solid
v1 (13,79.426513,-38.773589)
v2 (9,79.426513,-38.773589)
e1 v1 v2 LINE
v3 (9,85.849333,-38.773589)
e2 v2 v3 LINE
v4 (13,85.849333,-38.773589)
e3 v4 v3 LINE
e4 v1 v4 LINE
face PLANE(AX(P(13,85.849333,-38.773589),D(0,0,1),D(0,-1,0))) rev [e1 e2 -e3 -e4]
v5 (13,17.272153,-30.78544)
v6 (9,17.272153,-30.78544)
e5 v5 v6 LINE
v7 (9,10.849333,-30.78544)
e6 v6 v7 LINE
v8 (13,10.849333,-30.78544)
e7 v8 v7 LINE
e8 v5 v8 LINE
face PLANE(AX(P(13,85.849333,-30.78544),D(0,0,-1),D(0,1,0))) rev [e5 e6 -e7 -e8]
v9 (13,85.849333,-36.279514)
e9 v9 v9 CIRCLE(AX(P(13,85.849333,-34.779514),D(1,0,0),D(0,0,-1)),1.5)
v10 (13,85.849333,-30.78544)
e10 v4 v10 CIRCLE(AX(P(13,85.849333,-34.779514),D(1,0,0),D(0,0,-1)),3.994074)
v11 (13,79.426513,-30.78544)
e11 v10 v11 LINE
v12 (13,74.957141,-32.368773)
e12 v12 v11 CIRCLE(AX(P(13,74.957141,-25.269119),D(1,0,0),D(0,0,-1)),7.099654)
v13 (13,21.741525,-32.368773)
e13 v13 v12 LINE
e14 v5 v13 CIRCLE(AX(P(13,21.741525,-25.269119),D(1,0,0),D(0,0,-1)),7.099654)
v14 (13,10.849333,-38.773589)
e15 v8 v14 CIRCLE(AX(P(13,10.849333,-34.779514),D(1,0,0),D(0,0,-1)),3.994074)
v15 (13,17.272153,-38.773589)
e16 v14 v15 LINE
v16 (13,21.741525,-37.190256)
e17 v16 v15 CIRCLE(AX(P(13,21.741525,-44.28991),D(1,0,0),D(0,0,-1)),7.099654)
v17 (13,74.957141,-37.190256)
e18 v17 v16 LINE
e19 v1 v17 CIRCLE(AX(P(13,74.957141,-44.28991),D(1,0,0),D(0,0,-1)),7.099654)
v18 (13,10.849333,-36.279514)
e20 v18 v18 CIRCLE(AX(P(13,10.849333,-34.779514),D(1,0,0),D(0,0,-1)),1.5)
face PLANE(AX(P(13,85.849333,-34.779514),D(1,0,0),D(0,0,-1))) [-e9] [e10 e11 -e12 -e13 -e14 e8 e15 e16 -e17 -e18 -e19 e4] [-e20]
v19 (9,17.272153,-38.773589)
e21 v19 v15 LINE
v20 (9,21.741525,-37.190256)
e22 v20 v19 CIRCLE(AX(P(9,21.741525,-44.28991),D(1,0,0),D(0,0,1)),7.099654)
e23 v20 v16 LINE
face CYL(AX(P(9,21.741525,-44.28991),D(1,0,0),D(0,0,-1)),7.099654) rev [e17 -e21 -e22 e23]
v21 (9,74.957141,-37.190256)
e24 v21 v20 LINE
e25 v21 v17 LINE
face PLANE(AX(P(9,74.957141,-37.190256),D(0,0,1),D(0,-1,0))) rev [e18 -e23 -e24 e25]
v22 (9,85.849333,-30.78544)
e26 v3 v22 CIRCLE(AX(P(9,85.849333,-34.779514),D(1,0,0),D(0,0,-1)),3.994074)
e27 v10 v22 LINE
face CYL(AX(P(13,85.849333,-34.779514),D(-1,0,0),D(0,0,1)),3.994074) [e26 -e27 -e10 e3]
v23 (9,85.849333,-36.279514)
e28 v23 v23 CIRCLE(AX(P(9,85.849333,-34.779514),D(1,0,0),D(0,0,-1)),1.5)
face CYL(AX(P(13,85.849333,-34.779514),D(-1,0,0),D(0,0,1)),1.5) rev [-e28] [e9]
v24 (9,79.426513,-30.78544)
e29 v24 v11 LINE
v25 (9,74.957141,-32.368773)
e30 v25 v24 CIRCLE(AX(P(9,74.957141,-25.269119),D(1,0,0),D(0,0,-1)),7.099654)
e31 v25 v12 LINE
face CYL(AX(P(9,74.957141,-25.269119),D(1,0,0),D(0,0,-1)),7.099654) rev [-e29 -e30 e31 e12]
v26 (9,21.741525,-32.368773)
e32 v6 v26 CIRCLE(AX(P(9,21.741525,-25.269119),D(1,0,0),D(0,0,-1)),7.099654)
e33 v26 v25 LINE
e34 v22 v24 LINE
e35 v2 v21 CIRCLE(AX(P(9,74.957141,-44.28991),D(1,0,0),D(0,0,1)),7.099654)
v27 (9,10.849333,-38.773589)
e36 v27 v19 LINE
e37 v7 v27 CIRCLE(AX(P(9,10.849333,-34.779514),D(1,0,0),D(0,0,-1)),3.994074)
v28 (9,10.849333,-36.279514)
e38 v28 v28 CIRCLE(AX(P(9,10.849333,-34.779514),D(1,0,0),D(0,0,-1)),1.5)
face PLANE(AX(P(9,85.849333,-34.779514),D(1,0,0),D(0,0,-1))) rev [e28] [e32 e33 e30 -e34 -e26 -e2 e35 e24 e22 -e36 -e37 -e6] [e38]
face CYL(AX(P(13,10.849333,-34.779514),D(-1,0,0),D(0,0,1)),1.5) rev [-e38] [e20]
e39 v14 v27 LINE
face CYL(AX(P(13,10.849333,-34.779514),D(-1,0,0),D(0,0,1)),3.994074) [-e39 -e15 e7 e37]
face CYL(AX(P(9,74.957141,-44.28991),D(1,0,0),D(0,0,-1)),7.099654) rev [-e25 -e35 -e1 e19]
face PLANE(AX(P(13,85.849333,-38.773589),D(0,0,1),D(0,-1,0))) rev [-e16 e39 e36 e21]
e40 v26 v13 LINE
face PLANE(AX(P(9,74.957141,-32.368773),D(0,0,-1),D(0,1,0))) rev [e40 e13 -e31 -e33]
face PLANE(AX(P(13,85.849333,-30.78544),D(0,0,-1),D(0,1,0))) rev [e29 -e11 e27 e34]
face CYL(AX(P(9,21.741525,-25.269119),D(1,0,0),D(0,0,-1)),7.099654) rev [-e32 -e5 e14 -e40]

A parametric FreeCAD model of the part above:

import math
import FreeCAD as App
import Part
import Sketcher


def edges_at(feature, points):
    """Names of the edges that pass closest to the given points."""
    edges = feature.Shape.Edges
    near = lambda p: min(range(len(edges)), key=lambda i: edges[i].distToShape(Part.Vertex(*p))[0])
    return sorted({f"Edge{near(p) + 1}" for p in points})

doc = App.newDocument("Part")
body = doc.addObject("PartDesign::Body", "Body")

sketch1 = doc.addObject("Sketcher::SketchObject", "Sketch")
body.addObject(sketch1)
sketch1.AttachmentSupport = (doc.YZ_Plane, [""])
sketch1.MapMode = "FlatFace"
sketch1.addGeometry(Part.Circle(App.Vector(10.826778, -2.983379, 0), App.Vector(0, 0, 1), 10), False)
sketch1.addGeometry(Part.Circle(App.Vector(3.076778, -2.983379, 0), App.Vector(0, 0, 1), 0.8), False)
sketch1.addGeometry(Part.Circle(App.Vector(10.826778, 3.266621, 0), App.Vector(0, 0, 1), 0.8), False)
sketch1.addGeometry(Part.Circle(App.Vector(10.826778, -2.983379, 0), App.Vector(0, 0, 1), 3.301768), False)
sketch1.addGeometry(Part.Circle(App.Vector(10.826778, -9.233379, 0), App.Vector(0, 0, 1), 0.8), False)
sketch1.addGeometry(Part.Circle(App.Vector(18.576778, -2.983379, 0), App.Vector(0, 0, 1), 0.8), False)
sketch1.addConstraint(Sketcher.Constraint("Coincident", 3, 3, 0, 3))
sketch1.addConstraint(Sketcher.Constraint("Equal", 1, 2))
sketch1.addConstraint(Sketcher.Constraint("Equal", 2, 4))
sketch1.addConstraint(Sketcher.Constraint("Equal", 4, 5))
sketch1.addConstraint(Sketcher.Constraint("Horizontal", 0, 3, 1, 3))
sketch1.addConstraint(Sketcher.Constraint("Horizontal", 3, 3, 5, 3))
sketch1.addConstraint(Sketcher.Constraint("Vertical", 0, 3, 2, 3))
sketch1.addConstraint(Sketcher.Constraint("Vertical", 3, 3, 4, 3))
sketch1.addConstraint(Sketcher.Constraint("Diameter", 0, 20.0))
sketch1.addConstraint(Sketcher.Constraint("Diameter", 1, 1.6))
sketch1.addConstraint(Sketcher.Constraint("DistanceY", 4, 3, 2, 3, 12.5))
sketch1.addConstraint(Sketcher.Constraint("DistanceX", 1, 3, 5, 3, 15.5))
sketch1.addConstraint(Sketcher.Constraint("DistanceX", 1, 3, 0, 3, 7.75))
sketch1.addConstraint(Sketcher.Constraint("DistanceY", 0, 3, 2, 3, 6.25))
sketch1.addConstraint(Sketcher.Constraint("Diameter", 3, 6.603536))
sketch1.addConstraint(Sketcher.Constraint("DistanceX", -1, 1, 0, 3, 10.826778))
sketch1.addConstraint(Sketcher.Constraint("DistanceY", 0, 3, -1, 1, 2.983379))
pad1 = doc.addObject("PartDesign::Pad", "Pad")
body.addObject(pad1)
pad1.Profile = sketch1
pad1.Length = 1.5

sketch2 = doc.addObject("Sketcher::SketchObject", "Sketch001")
body.addObject(sketch2)
sketch2.AttachmentSupport = (doc.YZ_Plane, [""])
sketch2.MapMode = "FlatFace"
sketch2.addGeometry(Part.LineSegment(App.Vector(95.891603, 9.565166, 0), App.Vector(95.891603, -15.531924, 0)), False)
sketch2.addGeometry(Part.LineSegment(App.Vector(95.891603, -15.531924, 0), App.Vector(10.826778, -15.531924, 0)), False)
sketch2.addGeometry(Part.ArcOfCircle(Part.Circle(App.Vector(10.826778, -2.983379, 0), App.Vector(0, 0, 1), 12.548545), math.radians(90), math.radians(270)), False)
sketch2.addGeometry(Part.LineSegment(App.Vector(10.826778, 9.565166, 0), App.Vector(95.891603, 9.565166, 0)), False)
sketch2.addGeometry(Part.Circle(App.Vector(10.826778, -2.983379, 0), App.Vector(0, 0, 1), 10), False)
sketch2.addConstraint(Sketcher.Constraint("Coincident", 0, 2, 1, 1))
sketch2.addConstraint(Sketcher.Constraint("Tangent", 1, 2, 2, 2))
sketch2.addConstraint(Sketcher.Constraint("Tangent", 2, 1, 3, 1))
sketch2.addConstraint(Sketcher.Constraint("Coincident", 3, 2, 0, 1))
sketch2.addConstraint(Sketcher.Constraint("Vertical", 0))
sketch2.addConstraint(Sketcher.Constraint("Horizontal", 1))
sketch2.addConstraint(Sketcher.Constraint("Horizontal", 3))
sketch2.addConstraint(Sketcher.Constraint("Coincident", 4, 3, 2, 3))
sketch2.addConstraint(Sketcher.Constraint("Diameter", 4, 20.0))
sketch2.addConstraint(Sketcher.Constraint("Radius", 2, 12.548545))
sketch2.addConstraint(Sketcher.Constraint("DistanceX", 1, 2, 1, 1, 85.064825))
sketch2.addConstraint(Sketcher.Constraint("DistanceX", -1, 1, 2, 3, 10.826778))
sketch2.addConstraint(Sketcher.Constraint("DistanceY", 2, 3, -1, 1, 2.983379))
pad2 = doc.addObject("PartDesign::Pad", "Pad001")
body.addObject(pad2)
pad2.Profile = sketch2
pad2.Length = 9

sketch3 = doc.addObject("Sketcher::SketchObject", "Sketch002")
body.addObject(sketch3)
sketch3.AttachmentSupport = (doc.YZ_Plane, [""])
sketch3.MapMode = "FlatFace"
sketch3.AttachmentOffset = App.Placement(App.Vector(0, 0, 9), App.Rotation())
sketch3.addGeometry(Part.Circle(App.Vector(90.473666, -2.983379, 0), App.Vector(0, 0, 1), 1.5), False)
sketch3.addGeometry(Part.LineSegment(App.Vector(36.150413, 3.05113, 0), App.Vector(97.572569, 3.05113, 0)), False)
sketch3.addGeometry(Part.LineSegment(App.Vector(97.572569, 3.05113, 0), App.Vector(97.572569, 16.389018, 0)), False)
sketch3.addGeometry(Part.LineSegment(App.Vector(97.572569, 16.389018, 0), App.Vector(8.141093, 16.389018, 0)), False)
sketch3.addGeometry(Part.LineSegment(App.Vector(8.141093, 16.389018, 0), App.Vector(10.826778, 9.565166, 0)), False)
sketch3.addGeometry(Part.BSplineCurve([App.Vector(10.826778, 9.565166, 0), App.Vector(15.122204, 9.644231, 0), App.Vector(23.50701, 6.916246, 0), App.Vector(31.561715, 3.428269, 0), App.Vector(36.150413, 3.05113, 0)], [4, 1, 4], [0, 0.482384809, 1], False, 3, [1, 1, 1, 1, 1], False), False)
sketch3.addGeometry(Part.LineSegment(App.Vector(10.826778, -15.531924, 0), App.Vector(8.141093, -22.355776, 0)), False)
sketch3.addGeometry(Part.LineSegment(App.Vector(8.141093, -22.355776, 0), App.Vector(97.572569, -22.355776, 0)), False)
sketch3.addGeometry(Part.LineSegment(App.Vector(97.572569, -22.355776, 0), App.Vector(97.572569, -9.017887, 0)), False)
sketch3.addGeometry(Part.LineSegment(App.Vector(97.572569, -9.017887, 0), App.Vector(36.150413, -9.017887, 0)), False)
sketch3.addGeometry(Part.BSplineCurve([App.Vector(10.826778, -15.531924, 0), App.Vector(15.122204, -15.610989, 0), App.Vector(23.50701, -12.883003, 0), App.Vector(31.561715, -9.395026, 0), App.Vector(36.150413, -9.017887, 0)], [4, 1, 4], [0, 0.482384809, 1], False, 3, [1, 1, 1, 1, 1], False), False)
sketch3.addConstraint(Sketcher.Constraint("Block", 5))
sketch3.addConstraint(Sketcher.Constraint("Block", 10))
sketch3.addConstraint(Sketcher.Constraint("Coincident", 1, 2, 2, 1))
sketch3.addConstraint(Sketcher.Constraint("Coincident", 2, 2, 3, 1))
sketch3.addConstraint(Sketcher.Constraint("Coincident", 3, 2, 4, 1))
sketch3.addConstraint(Sketcher.Constraint("Coincident", 4, 2, 5, 1))
sketch3.addConstraint(Sketcher.Constraint("Coincident", 5, 2, 1, 1))
sketch3.addConstraint(Sketcher.Constraint("Coincident", 6, 2, 7, 1))
sketch3.addConstraint(Sketcher.Constraint("Coincident", 7, 2, 8, 1))
sketch3.addConstraint(Sketcher.Constraint("Coincident", 8, 2, 9, 1))
sketch3.addConstraint(Sketcher.Constraint("Coincident", 9, 2, 10, 2))
sketch3.addConstraint(Sketcher.Constraint("Coincident", 10, 1, 6, 1))
sketch3.addConstraint(Sketcher.Constraint("Horizontal", 1))
sketch3.addConstraint(Sketcher.Constraint("Vertical", 2))
sketch3.addConstraint(Sketcher.Constraint("Horizontal", 3))
sketch3.addConstraint(Sketcher.Constraint("Horizontal", 7))
sketch3.addConstraint(Sketcher.Constraint("Vertical", 8))
sketch3.addConstraint(Sketcher.Constraint("Horizontal", 9))
sketch3.addConstraint(Sketcher.Constraint("Vertical", 3, 2, 6, 2))
sketch3.addConstraint(Sketcher.Constraint("Vertical", 2, 2, 7, 2))
sketch3.addConstraint(Sketcher.Constraint("Equal", 2, 8))
sketch3.addConstraint(Sketcher.Constraint("Diameter", 0, 3.0))
sketch3.addConstraint(Sketcher.Constraint("DistanceY", 2, 1, 2, 2, 13.337889))
sketch3.addConstraint(Sketcher.Constraint("Distance", 4, 7.333339))
sketch3.addConstraint(Sketcher.Constraint("DistanceX", 1, 1, 1, 2, 61.422157))
sketch3.addConstraint(Sketcher.Constraint("DistanceY", 0, 3, -1, 1, 2.983379))
sketch3.addConstraint(Sketcher.Constraint("DistanceX", -1, 1, 0, 3, 90.473666))
pocket1 = doc.addObject("PartDesign::Pocket", "Pocket")
body.addObject(pocket1)
pocket1.Profile = sketch3
pocket1.Type = "ThroughAll"
pocket1.Midplane = True
doc.recompute()

fillet = doc.addObject("PartDesign::Fillet", "Fillet")
body.addObject(fillet)
fillet.Base = (pocket1, edges_at(pocket1, [(4.5, 95.892, 3.051), (4.5, 95.892, -9.018)]))
fillet.Radius = 5

sketch4 = doc.addObject("Sketcher::SketchObject", "Sketch003")
body.addObject(sketch4)
sketch4.AttachmentSupport = (doc.YZ_Plane, [""])
sketch4.MapMode = "FlatFace"
sketch4.AttachmentOffset = App.Placement(App.Vector(0, 0, 9), App.Rotation())
sketch4.addGeometry(Part.LineSegment(App.Vector(97.307194, 23.875207, 0), App.Vector(-8.179488, 23.875207, 0)), False)
sketch4.addGeometry(Part.LineSegment(App.Vector(-8.179488, 23.875207, 0), App.Vector(-8.179488, -19.911717, 0)), False)
sketch4.addGeometry(Part.LineSegment(App.Vector(-8.179488, -19.911717, 0), App.Vector(97.307194, -19.911717, 0)), False)
sketch4.addGeometry(Part.LineSegment(App.Vector(97.307194, -19.911717, 0), App.Vector(97.307194, 23.875207, 0)), False)
sketch4.addConstraint(Sketcher.Constraint("Coincident", 0, 2, 1, 1))
sketch4.addConstraint(Sketcher.Constraint("Coincident", 1, 2, 2, 1))
sketch4.addConstraint(Sketcher.Constraint("Coincident", 2, 2, 3, 1))
sketch4.addConstraint(Sketcher.Constraint("Coincident", 3, 2, 0, 1))
sketch4.addConstraint(Sketcher.Constraint("Horizontal", 0))
sketch4.addConstraint(Sketcher.Constraint("Vertical", 1))
sketch4.addConstraint(Sketcher.Constraint("Horizontal", 2))
sketch4.addConstraint(Sketcher.Constraint("Vertical", 3))
sketch4.addConstraint(Sketcher.Constraint("DistanceX", 0, 2, 0, 1, 105.486682))
sketch4.addConstraint(Sketcher.Constraint("DistanceY", 1, 2, 1, 1, 43.786925))
sketch4.addConstraint(Sketcher.Constraint("DistanceX", 0, 2, -1, 1, 8.179488))
sketch4.addConstraint(Sketcher.Constraint("DistanceY", -1, 1, 0, 2, 23.875207))
pocket2 = doc.addObject("PartDesign::Pocket", "Pocket001")
body.addObject(pocket2)
pocket2.Profile = sketch4
pocket2.Type = "ThroughAll"
pocket2.Midplane = True
body2 = doc.addObject("PartDesign::Body", "Body001")

sketch5 = doc.addObject("Sketcher::SketchObject", "Sketch004")
body2.addObject(sketch5)
sketch5.AttachmentSupport = (doc.getObject("YZ_Plane001"), [""])
sketch5.MapMode = "FlatFace"
sketch5.AttachmentOffset = App.Placement(App.Vector(0, 0, 9), App.Rotation())
sketch5.addGeometry(Part.LineSegment(App.Vector(10.849333, -38.773589, 0), App.Vector(85.849333, -38.773589, 0)), False)
sketch5.addGeometry(Part.ArcOfCircle(Part.Circle(App.Vector(85.849333, -34.779514, 0), App.Vector(0, 0, 1), 3.994074), math.radians(-90), math.radians(90)), False)
sketch5.addGeometry(Part.LineSegment(App.Vector(85.849333, -30.78544, 0), App.Vector(10.849333, -30.78544, 0)), False)
sketch5.addGeometry(Part.ArcOfCircle(Part.Circle(App.Vector(10.849333, -34.779514, 0), App.Vector(0, 0, 1), 3.994074), math.radians(90), math.radians(270)), False)
sketch5.addGeometry(Part.Circle(App.Vector(10.849333, -34.779514, 0), App.Vector(0, 0, 1), 1.5), False)
sketch5.addGeometry(Part.Circle(App.Vector(85.849333, -34.779514, 0), App.Vector(0, 0, 1), 1.5), False)
sketch5.addConstraint(Sketcher.Constraint("Tangent", 0, 2, 1, 1))
sketch5.addConstraint(Sketcher.Constraint("Tangent", 1, 2, 2, 1))
sketch5.addConstraint(Sketcher.Constraint("Tangent", 2, 2, 3, 1))
sketch5.addConstraint(Sketcher.Constraint("Tangent", 3, 2, 0, 1))
sketch5.addConstraint(Sketcher.Constraint("Horizontal", 0))
sketch5.addConstraint(Sketcher.Constraint("Horizontal", 2))
sketch5.addConstraint(Sketcher.Constraint("Coincident", 4, 3, 3, 3))
sketch5.addConstraint(Sketcher.Constraint("Coincident", 5, 3, 1, 3))
sketch5.addConstraint(Sketcher.Constraint("Equal", 4, 5))
sketch5.addConstraint(Sketcher.Constraint("Diameter", 4, 3.0))
sketch5.addConstraint(Sketcher.Constraint("DistanceX", 0, 1, 0, 2, 75.0))
sketch5.addConstraint(Sketcher.Constraint("Radius", 1, 3.994074))
sketch5.addConstraint(Sketcher.Constraint("DistanceY", 0, 2, -1, 1, 38.773589))
sketch5.addConstraint(Sketcher.Constraint("DistanceX", -1, 1, 1, 3, 85.849333))
pad3 = doc.addObject("PartDesign::Pad", "Pad002")
body2.addObject(pad3)
pad3.Profile = sketch5
pad3.Length = 4

sketch6 = doc.addObject("Sketcher::SketchObject", "Sketch005")
body2.addObject(sketch6)
sketch6.AttachmentSupport = (doc.getObject("YZ_Plane001"), [""])
sketch6.MapMode = "FlatFace"
sketch6.AttachmentOffset = App.Placement(App.Vector(0, 0, 13), App.Rotation())
sketch6.addGeometry(Part.LineSegment(App.Vector(21.741525, -32.368773, 0), App.Vector(74.957141, -32.368773, 0)), False)
sketch6.addGeometry(Part.ArcOfCircle(Part.Circle(App.Vector(74.957141, -25.269119, 0), App.Vector(0, 0, 1), 7.099654), math.radians(-90), math.radians(90)), False)
sketch6.addGeometry(Part.LineSegment(App.Vector(74.957141, -18.169465, 0), App.Vector(21.741525, -18.169465, 0)), False)
sketch6.addGeometry(Part.ArcOfCircle(Part.Circle(App.Vector(21.741525, -25.269119, 0), App.Vector(0, 0, 1), 7.099654), math.radians(90), math.radians(270)), False)
sketch6.addGeometry(Part.LineSegment(App.Vector(74.957141, -37.190256, 0), App.Vector(21.741525, -37.190256, 0)), False)
sketch6.addGeometry(Part.ArcOfCircle(Part.Circle(App.Vector(21.741525, -44.28991, 0), App.Vector(0, 0, 1), 7.099654), math.radians(90), math.radians(270)), False)
sketch6.addGeometry(Part.LineSegment(App.Vector(21.741525, -51.389564, 0), App.Vector(74.957141, -51.389564, 0)), False)
sketch6.addGeometry(Part.ArcOfCircle(Part.Circle(App.Vector(74.957141, -44.28991, 0), App.Vector(0, 0, 1), 7.099654), math.radians(-90), math.radians(90)), False)
sketch6.addConstraint(Sketcher.Constraint("Tangent", 0, 2, 1, 1))
sketch6.addConstraint(Sketcher.Constraint("Tangent", 1, 2, 2, 1))
sketch6.addConstraint(Sketcher.Constraint("Tangent", 2, 2, 3, 1))
sketch6.addConstraint(Sketcher.Constraint("Tangent", 3, 2, 0, 1))
sketch6.addConstraint(Sketcher.Constraint("Tangent", 4, 2, 5, 1))
sketch6.addConstraint(Sketcher.Constraint("Tangent", 5, 2, 6, 1))
sketch6.addConstraint(Sketcher.Constraint("Tangent", 6, 2, 7, 1))
sketch6.addConstraint(Sketcher.Constraint("Tangent", 7, 2, 4, 1))
sketch6.addConstraint(Sketcher.Constraint("Horizontal", 0))
sketch6.addConstraint(Sketcher.Constraint("Horizontal", 2))
sketch6.addConstraint(Sketcher.Constraint("Horizontal", 4))
sketch6.addConstraint(Sketcher.Constraint("Horizontal", 6))
sketch6.addConstraint(Sketcher.Constraint("Equal", 3, 5))
sketch6.addConstraint(Sketcher.Constraint("Vertical", 3, 3, 5, 3))
sketch6.addConstraint(Sketcher.Constraint("Vertical", 1, 3, 7, 3))
sketch6.addConstraint(Sketcher.Constraint("Radius", 1, 7.099654))
sketch6.addConstraint(Sketcher.Constraint("DistanceY", 5, 2, 2, 2, 33.220099))
sketch6.addConstraint(Sketcher.Constraint("DistanceX", 0, 1, 0, 2, 53.215616))
sketch6.addConstraint(Sketcher.Constraint("DistanceX", -1, 1, 1, 3, 74.957141))
sketch6.addConstraint(Sketcher.Constraint("DistanceY", 1, 3, -1, 1, 25.269119))
pocket3 = doc.addObject("PartDesign::Pocket", "Pocket002")
body2.addObject(pocket3)
pocket3.Profile = sketch6
pocket3.Type = "ThroughAll"
pocket3.Midplane = True

doc.recompute()
